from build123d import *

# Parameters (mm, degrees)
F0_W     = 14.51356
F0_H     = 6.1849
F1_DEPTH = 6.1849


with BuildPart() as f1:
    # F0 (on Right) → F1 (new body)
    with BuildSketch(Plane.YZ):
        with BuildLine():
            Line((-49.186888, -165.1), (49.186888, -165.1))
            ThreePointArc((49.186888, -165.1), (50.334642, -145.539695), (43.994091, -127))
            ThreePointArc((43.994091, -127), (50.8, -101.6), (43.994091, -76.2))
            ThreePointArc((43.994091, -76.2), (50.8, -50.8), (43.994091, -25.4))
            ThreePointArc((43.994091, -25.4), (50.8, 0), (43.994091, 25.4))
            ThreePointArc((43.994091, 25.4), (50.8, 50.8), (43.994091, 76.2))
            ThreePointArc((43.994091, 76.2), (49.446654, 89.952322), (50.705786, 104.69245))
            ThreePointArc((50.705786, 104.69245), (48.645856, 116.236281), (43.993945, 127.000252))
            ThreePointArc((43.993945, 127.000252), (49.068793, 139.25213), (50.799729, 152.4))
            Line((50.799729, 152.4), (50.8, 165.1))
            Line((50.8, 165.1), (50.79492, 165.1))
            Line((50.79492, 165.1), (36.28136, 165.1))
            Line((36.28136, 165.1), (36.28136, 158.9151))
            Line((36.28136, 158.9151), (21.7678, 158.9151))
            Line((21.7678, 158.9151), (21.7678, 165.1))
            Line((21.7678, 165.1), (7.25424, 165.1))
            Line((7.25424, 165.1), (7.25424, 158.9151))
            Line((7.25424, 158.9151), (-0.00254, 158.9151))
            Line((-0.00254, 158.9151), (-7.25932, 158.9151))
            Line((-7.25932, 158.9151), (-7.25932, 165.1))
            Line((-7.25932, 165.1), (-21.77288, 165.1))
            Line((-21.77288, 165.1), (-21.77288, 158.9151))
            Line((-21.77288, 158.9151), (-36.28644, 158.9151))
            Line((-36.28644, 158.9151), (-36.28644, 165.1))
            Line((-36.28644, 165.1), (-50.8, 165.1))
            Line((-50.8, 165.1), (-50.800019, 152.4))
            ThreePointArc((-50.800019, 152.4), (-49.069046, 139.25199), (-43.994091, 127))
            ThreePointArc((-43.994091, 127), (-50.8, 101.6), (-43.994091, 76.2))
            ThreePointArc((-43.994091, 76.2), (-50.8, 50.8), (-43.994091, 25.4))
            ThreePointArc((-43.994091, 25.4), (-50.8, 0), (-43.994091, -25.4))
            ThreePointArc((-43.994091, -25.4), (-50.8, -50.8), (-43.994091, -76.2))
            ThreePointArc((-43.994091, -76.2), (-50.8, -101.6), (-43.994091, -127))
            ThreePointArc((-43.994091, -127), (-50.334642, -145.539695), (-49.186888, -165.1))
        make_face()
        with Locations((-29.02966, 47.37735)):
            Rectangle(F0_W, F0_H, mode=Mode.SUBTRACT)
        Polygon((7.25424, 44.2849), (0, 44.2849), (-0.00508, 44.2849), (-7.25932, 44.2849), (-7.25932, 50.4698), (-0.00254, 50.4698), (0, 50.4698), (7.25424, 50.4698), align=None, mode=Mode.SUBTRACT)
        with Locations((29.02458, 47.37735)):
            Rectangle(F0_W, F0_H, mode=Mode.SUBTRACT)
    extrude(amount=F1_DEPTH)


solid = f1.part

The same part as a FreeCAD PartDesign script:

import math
import FreeCAD as App
import Part
import Sketcher
from FreeCAD import Vector
Q = App.Units.Quantity


def add_polygon(sketch, points):
    """Adds a closed chain of lines whose ends are joined by coincident constraints."""
    first, n = sketch.GeometryCount, len(points)
    for a, b in zip(points, points[1:] + points[:1]):
        sketch.addGeometry(Part.LineSegment(App.Vector(*a, 0), App.Vector(*b, 0)), False)
    for i in range(n):
        sketch.addConstraint(Sketcher.Constraint("Coincident", first + i, 2, first + (i + 1) % n, 1))

doc = App.newDocument("Part")
params = doc.addObject("Spreadsheet::Sheet", "Params")
for row, (alias, value) in enumerate([
    ("sketch1_radius", "2.0000001 in"),
    ("sketch1_radius2", "2.0000001 in"),
    ("sketch1_radius3", "2.0000001 in"),
    ("sketch1_radius4", "2.0000001 in"),
    ("sketch1_radius5", "2.0000001 in"),
    ("pad1_length", "0.2435 in"),
], start=1):
    params.set(f"A{row}", alias)
    params.set(f"B{row}", "=" + value)
    params.setAlias(f"B{row}", alias)

body = doc.addObject("PartDesign::Body", "Body")

sketch1 = body.newObject("Sketcher::SketchObject", "Sketch")
sketch1.AttachmentSupport = (doc.getObject("YZ_Plane"), [""])
sketch1.MapMode = "FlatFace"
sketch1.addGeometry(Part.LineSegment(Vector(-49.186888, -165.1, 0), Vector(49.186888, -165.1, 0)), False)
sketch1.addGeometry(Part.ArcOfCircle(Part.Circle(Vector(-0.000004, -152.399999, 0), Vector(0, 0, 1), 50.800003), math.radians(-14.477512), math.radians(29.999997)), False)
sketch1.addGeometry(Part.ArcOfCircle(Part.Circle(Vector(-0.000003, -101.6, 0), Vector(0, 0, 1), 50.800003), math.radians(-29.999998), math.radians(29.999998)), False)
sketch1.addGeometry(Part.ArcOfCircle(Part.Circle(Vector(-0.000003, -50.8, 0), Vector(0, 0, 1), 50.800003), math.radians(-29.999998), math.radians(29.999998)), False)
sketch1.addGeometry(Part.ArcOfCircle(Part.Circle(Vector(-0.000003, 0, 0), Vector(0, 0, 1), 50.800003), math.radians(-29.999998), math.radians(29.999998)), False)
sketch1.addGeometry(Part.ArcOfCircle(Part.Circle(Vector(-0.000003, 50.8, 0), Vector(0, 0, 1), 50.800003), math.radians(-29.999998), math.radians(29.999998)), False)
sketch1.addGeometry(Part.ArcOfCircle(Part.Circle(Vector(-0.000004, 101.6, 0), Vector(0, 0, 1), 50.800004), math.radians(-29.999997), math.radians(3.490038)), False)
sketch1.addGeometry(Part.ArcOfCircle(Part.Circle(Vector(0.000013, 101.600004, 0), Vector(0, 0, 1), 50.799986), math.radians(3.490034), math.radians(30.000331)), False)
sketch1.addGeometry(Part.ArcOfCircle(Part.Circle(Vector(-0.000149, 152.400002, 0), Vector(0, 0, 1), 50.799878), math.radians(-29.999754), math.radians(-0.000002)), False)
sketch1.addGeometry(Part.LineSegment(Vector(50.799729, 152.4, 0), Vector(50.8, 165.1, 0)), False)
sketch1.addGeometry(Part.LineSegment(Vector(50.8, 165.1, 0), Vector(36.28136, 165.1, 0)), False)
sketch1.addGeometry(Part.LineSegment(Vector(36.28136, 165.1, 0), Vector(36.28136, 158.9151, 0)), False)
sketch1.addGeometry(Part.LineSegment(Vector(36.28136, 158.9151, 0), Vector(21.7678, 158.9151, 0)), False)
sketch1.addGeometry(Part.LineSegment(Vector(21.7678, 158.9151, 0), Vector(21.7678, 165.1, 0)), False)
sketch1.addGeometry(Part.LineSegment(Vector(21.7678, 165.1, 0), Vector(7.25424, 165.1, 0)), False)
sketch1.addGeometry(Part.LineSegment(Vector(7.25424, 165.1, 0), Vector(7.25424, 158.9151, 0)), False)
sketch1.addGeometry(Part.LineSegment(Vector(7.25424, 158.9151, 0), Vector(-7.25932, 158.9151, 0)), False)
sketch1.addGeometry(Part.LineSegment(Vector(-7.25932, 158.9151, 0), Vector(-7.25932, 165.1, 0)), False)
sketch1.addGeometry(Part.LineSegment(Vector(-7.25932, 165.1, 0), Vector(-21.77288, 165.1, 0)), False)
sketch1.addGeometry(Part.LineSegment(Vector(-21.77288, 165.1, 0), Vector(-21.77288, 158.9151, 0)), False)
sketch1.addGeometry(Part.LineSegment(Vector(-21.77288, 158.9151, 0), Vector(-36.28644, 158.9151, 0)), False)
sketch1.addGeometry(Part.LineSegment(Vector(-36.28644, 158.9151, 0), Vector(-36.28644, 165.1, 0)), False)
sketch1.addGeometry(Part.LineSegment(Vector(-36.28644, 165.1, 0), Vector(-50.8, 165.1, 0)), False)
sketch1.addGeometry(Part.LineSegment(Vector(-50.8, 165.1, 0), Vector(-50.800019, 152.4, 0)), False)
sketch1.addGeometry(Part.ArcOfCircle(Part.Circle(Vector(-0.000136, 152.400001, 0), Vector(0, 0, 1), 50.799883), math.radians(-179.999999), math.radians(-149.999923)), False)
sketch1.addGeometry(Part.ArcOfCircle(Part.Circle(Vector(0.000003, 101.6, 0), Vector(0, 0, 1), 50.800003), math.radians(150.000002), math.radians(209.999998)), False)
sketch1.addGeometry(Part.ArcOfCircle(Part.Circle(Vector(0.000003, 50.8, 0), Vector(0, 0, 1), 50.800003), math.radians(150.000002), math.radians(209.999998)), False)
sketch1.addGeometry(Part.ArcOfCircle(Part.Circle(Vector(0.000003, 0, 0), Vector(0, 0, 1), 50.800003), math.radians(150.000002), math.radians(209.999998)), False)
sketch1.addGeometry(Part.ArcOfCircle(Part.Circle(Vector(0.000003, -50.8, 0), Vector(0, 0, 1), 50.800003), math.radians(150.000002), math.radians(209.999998)), False)
sketch1.addGeometry(Part.ArcOfCircle(Part.Circle(Vector(0.000003, -101.6, 0), Vector(0, 0, 1), 50.800003), math.radians(150.000002), math.radians(209.999998)), False)
sketch1.addGeometry(Part.ArcOfCircle(Part.Circle(Vector(0.000004, -152.399999, 0), Vector(0, 0, 1), 50.800003), math.radians(150.000003), math.radians(194.477512)), False)
add_polygon(sketch1, [(-21.77288, 44.2849), (-36.28644, 44.2849), (-36.28644, 50.4698), (-21.77288, 50.4698)])
add_polygon(sketch1, [(7.25424, 50.4698), (7.25424, 44.2849), (-7.25932, 44.2849), (-7.25932, 50.4698)])
add_polygon(sketch1, [(36.28136, 44.2849), (21.7678, 44.2849), (21.7678, 50.4698), (36.28136, 50.4698)])
sketch1.addConstraint([
    Sketcher.Constraint("Coincident", 0, 2, 1, 1),
    Sketcher.Constraint("Coincident", 1, 2, 2, 1),
    Sketcher.Constraint("Coincident", 2, 2, 3, 1),
    Sketcher.Constraint("Coincident", 3, 2, 4, 1),
    Sketcher.Constraint("Coincident", 4, 2, 5, 1),
    Sketcher.Constraint("Coincident", 5, 2, 6, 1),
    Sketcher.Constraint("Coincident", 6, 2, 7, 1),
    Sketcher.Constraint("Coincident", 7, 2, 8, 1),
    Sketcher.Constraint("Coincident", 8, 2, 9, 1),
    Sketcher.Constraint("Coincident", 9, 2, 10, 1),
    Sketcher.Constraint("Coincident", 10, 2, 11, 1),
    Sketcher.Constraint("Coincident", 11, 2, 12, 1),
    Sketcher.Constraint("Coincident", 12, 2, 13, 1),
    Sketcher.Constraint("Coincident", 13, 2, 14, 1),
    Sketcher.Constraint("Coincident", 14, 2, 15, 1),
    Sketcher.Constraint("Coincident", 15, 2, 16, 1),
    Sketcher.Constraint("Coincident", 16, 2, 17, 1),
    Sketcher.Constraint("Coincident", 17, 2, 18, 1),
    Sketcher.Constraint("Coincident", 18, 2, 19, 1),
    Sketcher.Constraint("Coincident", 19, 2, 20, 1),
    Sketcher.Constraint("Coincident", 20, 2, 21, 1),
    Sketcher.Constraint("Coincident", 21, 2, 22, 1),
    Sketcher.Constraint("Coincident", 22, 2, 23, 1),
    Sketcher.Constraint("Coincident", 23, 2, 24, 1),
    Sketcher.Constraint("Coincident", 24, 2, 25, 1),
    Sketcher.Constraint("Coincident", 25, 2, 26, 1),
    Sketcher.Constraint("Coincident", 26, 2, 27, 1),
    Sketcher.Constraint("Coincident", 27, 2, 28, 1),
    Sketcher.Constraint("Coincident", 28, 2, 29, 1),
    Sketcher.Constraint("Coincident", 29, 2, 30, 1),
    Sketcher.Constraint("Coincident", 30, 2, 0, 1),
    Sketcher.Constraint("Horizontal", 0),
    Sketcher.Constraint("Horizontal", 10),
    Sketcher.Constraint("Vertical", 11),
    Sketcher.Constraint("Horizontal", 12),
    Sketcher.Constraint("Vertical", 13),
    Sketcher.Constraint("Horizontal", 14),
    Sketcher.Constraint("Vertical", 15),
    Sketcher.Constraint("Horizontal", 16),
    Sketcher.Constraint("Vertical", 17),
    Sketcher.Constraint("Horizontal", 18),
    Sketcher.Constraint("Vertical", 19),
    Sketcher.Constraint("Horizontal", 20),
    Sketcher.Constraint("Vertical", 21),
    Sketcher.Constraint("Horizontal", 22),
    Sketcher.Constraint("Horizontal", 31),
    Sketcher.Constraint("Vertical", 32),
    Sketcher.Constraint("Horizontal", 33),
    Sketcher.Constraint("Vertical", 34),
    Sketcher.Constraint("Vertical", 35),
    Sketcher.Constraint("Horizontal", 36),
    Sketcher.Constraint("Vertical", 37),
    Sketcher.Constraint("Horizontal", 38),
    Sketcher.Constraint("Horizontal", 39),
    Sketcher.Constraint("Vertical", 40),
    Sketcher.Constraint("Horizontal", 41),
    Sketcher.Constraint("Vertical", 42),
    Sketcher.Constraint("Coincident", 4, 3, -1, 1),
    Sketcher.Constraint("Coincident", 27, 3, -1, 1),
    Sketcher.Constraint("Coincident", 25, 3, 6, 3),
    Sketcher.Constraint("Coincident", 26, 3, 5, 3),
    Sketcher.Constraint("Coincident", 28, 3, 3, 3),
    Sketcher.Constraint("Coincident", 29, 3, 2, 3),
    Sketcher.Constraint("Coincident", 30, 3, 1, 3),
    Sketcher.Constraint("Radius", 1, Q("2.0000001 in")),
    Sketcher.Constraint("Radius", 2, Q("2.0000001 in")),
    Sketcher.Constraint("Radius", 3, Q("2.0000001 in")),
    Sketcher.Constraint("Radius", 4, Q("2.0000001 in")),
    Sketcher.Constraint("Radius", 5, Q("2.0000001 in")),
    Sketcher.Constraint("Radius", 6, Q("2.0000002 in")),
    Sketcher.Constraint("Radius", 25, Q("2.0000001 in")),
    Sketcher.Constraint("Radius", 26, Q("2.0000001 in")),
    Sketcher.Constraint("Radius", 27, Q("2.0000001 in")),
    Sketcher.Constraint("Radius", 28, Q("2.0000001 in")),
    Sketcher.Constraint("Radius", 29, Q("2.0000001 in")),
    Sketcher.Constraint("Radius", 30, Q("2.0000001 in")),
    Sketcher.Constraint("DistanceY", 1, 3, -1, 1, Q("6 in")),
    Sketcher.Constraint("DistanceY", 2, 3, -1, 1, Q("4 in")),
    Sketcher.Constraint("DistanceY", 3, 3, -1, 1, Q("2 in")),
    Sketcher.Constraint("DistanceY", -1, 1, 5, 3, Q("2 in")),
    Sketcher.Constraint("DistanceY", -1, 1, 6, 3, Q("4 in")),
    Sketcher.Constraint("DistanceY", -1, 1, 7, 3, Q("4.0000002 in")),
    Sketcher.Constraint("DistanceY", -1, 1, 8, 3, Q("6.0000001 in")),
    Sketcher.Constraint("DistanceY", -1, 1, 24, 3, Q("6 in")),
    Sketcher.Constraint("DistanceY", 1, 2, -1, 1, Q("5 in")),
    Sketcher.Constraint("DistanceY", 2, 2, -1, 1, Q("3 in")),
    Sketcher.Constraint("DistanceY", 3, 2, -1, 1, Q("1 in")),
    Sketcher.Constraint("DistanceY", -1, 1, 4, 2, Q("1 in")),
    Sketcher.Constraint("DistanceY", -1, 1, 5, 2, Q("3 in")),
    Sketcher.Constraint("DistanceY", -1, 1, 8, 2, Q("6 in")),
    Sketcher.Constraint("DistanceX", -1, 1, 9, 2, Q("2 in")),
    Sketcher.Constraint("DistanceX", 22, 2, -1, 1, Q("2 in")),
    Sketcher.Constraint("DistanceY", -1, 1, 23, 2, Q("6 in")),
    Sketcher.Constraint("DistanceY", -1, 1, 24, 2, Q("5 in")),
    Sketcher.Constraint("Distance", 9, Q("0.5 in")),
    Sketcher.Constraint("Distance", 23, Q("0.5 in")),
    Sketcher.Constraint("DistanceY", 0, 2, -1, 1, Q("6.5 in")),
    Sketcher.Constraint("DistanceY", -1, 1, 13, 2, Q("6.5 in")),
    Sketcher.Constraint("DistanceY", -1, 1, 17, 2, Q("6.5 in")),
    Sketcher.Constraint("DistanceX", 10, 2, 10, 1, Q("0.5716 in")),
    Sketcher.Constraint("DistanceX", 12, 2, 12, 1, Q("0.5714 in")),
    Sketcher.Constraint("DistanceX", 14, 2, 14, 1, Q("0.5714 in")),
    Sketcher.Constraint("DistanceX", 16, 2, 16, 1, Q("0.5714 in")),
    Sketcher.Constraint("DistanceX", 18, 2, 18, 1, Q("0.5714 in")),
    Sketcher.Constraint("DistanceX", 20, 2, 20, 1, Q("0.5714 in")),
    Sketcher.Constraint("DistanceX", 31, 2, 31, 1, Q("0.5714 in")),
    Sketcher.Constraint("DistanceX", 36, 2, 36, 1, Q("0.5714 in")),
    Sketcher.Constraint("DistanceX", 39, 2, 39, 1, Q("0.5714 in")),
    Sketcher.Constraint("DistanceY", 11, 2, 11, 1, Q("0.2435 in")),
    Sketcher.Constraint("DistanceY", 15, 2, 15, 1, Q("0.2435 in")),
    Sketcher.Constraint("DistanceY", 19, 2, 19, 1, Q("0.2435 in")),
    Sketcher.Constraint("DistanceY", 32, 1, 32, 2, Q("0.2435 in")),
    Sketcher.Constraint("DistanceY", 35, 2, 35, 1, Q("0.2435 in")),
    Sketcher.Constraint("DistanceY", 40, 1, 40, 2, Q("0.2435 in")),
    Sketcher.Constraint("DistanceY", -1, 1, 32, 2, Q("1.987 in")),
    Sketcher.Constraint("DistanceY", -1, 1, 37, 2, Q("1.987 in")),
    Sketcher.Constraint("DistanceX", -1, 1, 39, 2, Q("0.857 in")),
    Sketcher.Constraint("DistanceY", -1, 1, 40, 2, Q("1.987 in")),
    Sketcher.Constraint("DistanceX", 31, 2, -1, 1, Q("1.4286 in")),
    Sketcher.Constraint("DistanceX", -1, 1, 35, 2, Q("0.2856 in")),
    Sketcher.Constraint("Radius", 7, 50.799986),
    Sketcher.Constraint("Radius", 8, 50.799878),
    Sketcher.Constraint("Radius", 24, 50.799883),
    Sketcher.Constraint("DistanceX", 8, 3, -1, 1, 0.000149),
    Sketcher.Constraint("DistanceY", -1, 1, 6, 2, 104.69245),
])
sketch1.setExpression("Constraints[76]", "Params.sketch1_radius")
sketch1.setExpression("Constraints[77]", "Params.sketch1_radius2")
sketch1.setExpression("Constraints[78]", "Params.sketch1_radius3")
sketch1.setExpression("Constraints[79]", "Params.sketch1_radius4")
sketch1.setExpression("Constraints[80]", "Params.sketch1_radius5")
pad1 = body.newObject("PartDesign::Pad", "Pad")
pad1.Profile = sketch1
pad1.setExpression("Length", "Params.pad1_length")

doc.recompute()
